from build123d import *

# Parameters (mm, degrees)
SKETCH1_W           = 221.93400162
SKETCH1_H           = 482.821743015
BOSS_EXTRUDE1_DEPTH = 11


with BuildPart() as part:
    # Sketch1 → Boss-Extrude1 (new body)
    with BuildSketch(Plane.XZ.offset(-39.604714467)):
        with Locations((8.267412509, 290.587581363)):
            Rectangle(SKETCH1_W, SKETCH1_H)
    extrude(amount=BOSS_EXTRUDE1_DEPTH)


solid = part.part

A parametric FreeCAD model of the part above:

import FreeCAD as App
import Part
import Sketcher
from FreeCAD import Vector

doc = App.newDocument("Part")
body = doc.addObject("PartDesign::Body", "Body")

sketch1 = body.newObject("Sketcher::SketchObject", "Sketch")
sketch1.AttachmentSupport = (doc.getObject("XZ_Plane"), [""])
sketch1.MapMode = "FlatFace"
sketch1.AttachmentOffset = App.Placement(Vector(0, 0, -39.604714), App.Rotation())
sketch1.addGeometry(Part.LineSegment(Vector(-102.699588, 531.998453, 0), Vector(-102.699588, 49.17671, 0)), False)
sketch1.addGeometry(Part.LineSegment(Vector(-102.699588, 49.17671, 0), Vector(119.234413, 49.17671, 0)), False)
sketch1.addGeometry(Part.LineSegment(Vector(119.234413, 49.17671, 0), Vector(119.234413, 531.998453, 0)), False)
sketch1.addGeometry(Part.LineSegment(Vector(119.234413, 531.998453, 0), Vector(-102.699588, 531.998453, 0)), False)
sketch1.addConstraint(Sketcher.Constraint("Coincident", 0, 2, 1, 1))
sketch1.addConstraint(Sketcher.Constraint("Coincident", 1, 2, 2, 1))
sketch1.addConstraint(Sketcher.Constraint("Coincident", 2, 2, 3, 1))
sketch1.addConstraint(Sketcher.Constraint("Coincident", 3, 2, 0, 1))
sketch1.addConstraint(Sketcher.Constraint("Vertical", 0))
sketch1.addConstraint(Sketcher.Constraint("Horizontal", 1))
sketch1.addConstraint(Sketcher.Constraint("Vertical", 2))
sketch1.addConstraint(Sketcher.Constraint("Horizontal", 3))
sketch1.addConstraint(Sketcher.Constraint("DistanceX", 1, 1, 1, 2, 221.934002))
sketch1.addConstraint(Sketcher.Constraint("DistanceY", 0, 2, 0, 1, 482.821743))
sketch1.addConstraint(Sketcher.Constraint("DistanceX", 0, 2, -1, 1, 102.699588))
sketch1.addConstraint(Sketcher.Constraint("DistanceY", -1, 1, 0, 2, 49.17671))
pad1 = body.newObject("PartDesign::Pad", "Pad")
pad1.Profile = sketch1
pad1.Length = 11

doc.recompute()
